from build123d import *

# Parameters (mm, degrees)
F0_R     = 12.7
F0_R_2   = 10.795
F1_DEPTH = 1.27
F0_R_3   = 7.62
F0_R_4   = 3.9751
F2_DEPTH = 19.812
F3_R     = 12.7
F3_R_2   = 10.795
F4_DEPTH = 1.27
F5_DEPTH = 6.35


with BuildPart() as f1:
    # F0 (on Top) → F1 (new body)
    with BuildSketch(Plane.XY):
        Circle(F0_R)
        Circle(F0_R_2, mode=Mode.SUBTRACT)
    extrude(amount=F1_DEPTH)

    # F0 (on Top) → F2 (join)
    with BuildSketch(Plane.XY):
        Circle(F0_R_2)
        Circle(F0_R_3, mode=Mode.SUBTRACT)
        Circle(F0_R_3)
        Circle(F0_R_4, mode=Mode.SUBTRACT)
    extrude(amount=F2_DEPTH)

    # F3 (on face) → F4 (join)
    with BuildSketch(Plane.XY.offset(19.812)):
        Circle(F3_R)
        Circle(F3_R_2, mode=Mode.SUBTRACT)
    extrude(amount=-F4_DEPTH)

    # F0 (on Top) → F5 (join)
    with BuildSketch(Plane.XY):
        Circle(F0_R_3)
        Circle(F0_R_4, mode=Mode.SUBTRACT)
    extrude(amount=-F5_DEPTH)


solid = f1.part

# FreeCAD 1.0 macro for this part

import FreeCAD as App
import Part
import Sketcher
Q = App.Units.Quantity

doc = App.newDocument("Part")
body = doc.addObject("PartDesign::Body", "Body")

# Sketch on XY plane
sketch1 = doc.addObject("Sketcher::SketchObject", "Sketch")
body.addObject(sketch1)
sketch1.AttachmentSupport = (doc.XY_Plane, [""])
sketch1.MapMode = "FlatFace"
sketch1.addGeometry([
    Part.Circle(App.Vector(0, 0, 0), App.Vector(0, 0, 1), 13),
    Part.Circle(App.Vector(0, 0, 0), App.Vector(0, 0, 1), 11),
], False)
sketch1.addConstraint([
    Sketcher.Constraint("Coincident", 0, 3, -1, 1),
    Sketcher.Constraint("Coincident", 1, 3, -1, 1),
    Sketcher.Constraint("Diameter", 0, Q("1 in")),
    Sketcher.Constraint("Diameter", 1, Q("0.85 in")),
])
pad1 = doc.addObject("PartDesign::Pad", "Pad")
body.addObject(pad1)
pad1.Profile = sketch1
pad1.Length = Q("0.05 in")

# Sketch on XY plane
sketch2 = doc.addObject("Sketcher::SketchObject", "Sketch001")
body.addObject(sketch2)
sketch2.AttachmentSupport = (doc.XY_Plane, [""])
sketch2.MapMode = "FlatFace"
sketch2.addGeometry([
    Part.Circle(App.Vector(0, 0, 0), App.Vector(0, 0, 1), 10.8),
    Part.Circle(App.Vector(0, 0, 0), App.Vector(0, 0, 1), 4),
], False)
sketch2.addConstraint([
    Sketcher.Constraint("Coincident", 0, 3, -1, 1),
    Sketcher.Constraint("Coincident", 1, 3, -1, 1),
    Sketcher.Constraint("Diameter", 0, Q("0.85 in")),
    Sketcher.Constraint("Diameter", 1, Q("0.313 in")),
])
pad2 = doc.addObject("PartDesign::Pad", "Pad001")
body.addObject(pad2)
pad2.Profile = sketch2
pad2.Length = Q("0.78 in")

# Sketch on XY plane
sketch3 = doc.addObject("Sketcher::SketchObject", "Sketch002")
body.addObject(sketch3)
sketch3.AttachmentSupport = (doc.XY_Plane, [""])
sketch3.MapMode = "FlatFace"
sketch3.AttachmentOffset = App.Placement(App.Vector(0, 0, 0.78 * 25.4), App.Rotation())
sketch3.addGeometry([
    Part.Circle(App.Vector(0, 0, 0), App.Vector(0, 0, 1), 13),
    Part.Circle(App.Vector(0, 0, 0), App.Vector(0, 0, 1), 11),
], False)
sketch3.addConstraint([
    Sketcher.Constraint("Coincident", 0, 3, -1, 1),
    Sketcher.Constraint("Coincident", 1, 3, -1, 1),
    Sketcher.Constraint("Diameter", 0, Q("1 in")),
    Sketcher.Constraint("Diameter", 1, Q("0.85 in")),
])
pad3 = doc.addObject("PartDesign::Pad", "Pad002")
body.addObject(pad3)
pad3.Profile = sketch3
pad3.Length = Q("0.05 in")
pad3.Reversed = True

# Sketch on XY plane
sketch4 = doc.addObject("Sketcher::SketchObject", "Sketch003")
body.addObject(sketch4)
sketch4.AttachmentSupport = (doc.XY_Plane, [""])
sketch4.MapMode = "FlatFace"
sketch4.addGeometry([
    Part.Circle(App.Vector(0, 0, 0), App.Vector(0, 0, 1), 7.6),
    Part.Circle(App.Vector(0, 0, 0), App.Vector(0, 0, 1), 4),
], False)
sketch4.addConstraint([
    Sketcher.Constraint("Coincident", 0, 3, -1, 1),
    Sketcher.Constraint("Coincident", 1, 3, -1, 1),
    Sketcher.Constraint("Diameter", 0, Q("0.6 in")),
    Sketcher.Constraint("Diameter", 1, Q("0.313 in")),
])
pad4 = doc.addObject("PartDesign::Pad", "Pad003")
body.addObject(pad4)
pad4.Profile = sketch4
pad4.Length = Q("0.25 in")
pad4.Reversed = True

doc.recompute()
